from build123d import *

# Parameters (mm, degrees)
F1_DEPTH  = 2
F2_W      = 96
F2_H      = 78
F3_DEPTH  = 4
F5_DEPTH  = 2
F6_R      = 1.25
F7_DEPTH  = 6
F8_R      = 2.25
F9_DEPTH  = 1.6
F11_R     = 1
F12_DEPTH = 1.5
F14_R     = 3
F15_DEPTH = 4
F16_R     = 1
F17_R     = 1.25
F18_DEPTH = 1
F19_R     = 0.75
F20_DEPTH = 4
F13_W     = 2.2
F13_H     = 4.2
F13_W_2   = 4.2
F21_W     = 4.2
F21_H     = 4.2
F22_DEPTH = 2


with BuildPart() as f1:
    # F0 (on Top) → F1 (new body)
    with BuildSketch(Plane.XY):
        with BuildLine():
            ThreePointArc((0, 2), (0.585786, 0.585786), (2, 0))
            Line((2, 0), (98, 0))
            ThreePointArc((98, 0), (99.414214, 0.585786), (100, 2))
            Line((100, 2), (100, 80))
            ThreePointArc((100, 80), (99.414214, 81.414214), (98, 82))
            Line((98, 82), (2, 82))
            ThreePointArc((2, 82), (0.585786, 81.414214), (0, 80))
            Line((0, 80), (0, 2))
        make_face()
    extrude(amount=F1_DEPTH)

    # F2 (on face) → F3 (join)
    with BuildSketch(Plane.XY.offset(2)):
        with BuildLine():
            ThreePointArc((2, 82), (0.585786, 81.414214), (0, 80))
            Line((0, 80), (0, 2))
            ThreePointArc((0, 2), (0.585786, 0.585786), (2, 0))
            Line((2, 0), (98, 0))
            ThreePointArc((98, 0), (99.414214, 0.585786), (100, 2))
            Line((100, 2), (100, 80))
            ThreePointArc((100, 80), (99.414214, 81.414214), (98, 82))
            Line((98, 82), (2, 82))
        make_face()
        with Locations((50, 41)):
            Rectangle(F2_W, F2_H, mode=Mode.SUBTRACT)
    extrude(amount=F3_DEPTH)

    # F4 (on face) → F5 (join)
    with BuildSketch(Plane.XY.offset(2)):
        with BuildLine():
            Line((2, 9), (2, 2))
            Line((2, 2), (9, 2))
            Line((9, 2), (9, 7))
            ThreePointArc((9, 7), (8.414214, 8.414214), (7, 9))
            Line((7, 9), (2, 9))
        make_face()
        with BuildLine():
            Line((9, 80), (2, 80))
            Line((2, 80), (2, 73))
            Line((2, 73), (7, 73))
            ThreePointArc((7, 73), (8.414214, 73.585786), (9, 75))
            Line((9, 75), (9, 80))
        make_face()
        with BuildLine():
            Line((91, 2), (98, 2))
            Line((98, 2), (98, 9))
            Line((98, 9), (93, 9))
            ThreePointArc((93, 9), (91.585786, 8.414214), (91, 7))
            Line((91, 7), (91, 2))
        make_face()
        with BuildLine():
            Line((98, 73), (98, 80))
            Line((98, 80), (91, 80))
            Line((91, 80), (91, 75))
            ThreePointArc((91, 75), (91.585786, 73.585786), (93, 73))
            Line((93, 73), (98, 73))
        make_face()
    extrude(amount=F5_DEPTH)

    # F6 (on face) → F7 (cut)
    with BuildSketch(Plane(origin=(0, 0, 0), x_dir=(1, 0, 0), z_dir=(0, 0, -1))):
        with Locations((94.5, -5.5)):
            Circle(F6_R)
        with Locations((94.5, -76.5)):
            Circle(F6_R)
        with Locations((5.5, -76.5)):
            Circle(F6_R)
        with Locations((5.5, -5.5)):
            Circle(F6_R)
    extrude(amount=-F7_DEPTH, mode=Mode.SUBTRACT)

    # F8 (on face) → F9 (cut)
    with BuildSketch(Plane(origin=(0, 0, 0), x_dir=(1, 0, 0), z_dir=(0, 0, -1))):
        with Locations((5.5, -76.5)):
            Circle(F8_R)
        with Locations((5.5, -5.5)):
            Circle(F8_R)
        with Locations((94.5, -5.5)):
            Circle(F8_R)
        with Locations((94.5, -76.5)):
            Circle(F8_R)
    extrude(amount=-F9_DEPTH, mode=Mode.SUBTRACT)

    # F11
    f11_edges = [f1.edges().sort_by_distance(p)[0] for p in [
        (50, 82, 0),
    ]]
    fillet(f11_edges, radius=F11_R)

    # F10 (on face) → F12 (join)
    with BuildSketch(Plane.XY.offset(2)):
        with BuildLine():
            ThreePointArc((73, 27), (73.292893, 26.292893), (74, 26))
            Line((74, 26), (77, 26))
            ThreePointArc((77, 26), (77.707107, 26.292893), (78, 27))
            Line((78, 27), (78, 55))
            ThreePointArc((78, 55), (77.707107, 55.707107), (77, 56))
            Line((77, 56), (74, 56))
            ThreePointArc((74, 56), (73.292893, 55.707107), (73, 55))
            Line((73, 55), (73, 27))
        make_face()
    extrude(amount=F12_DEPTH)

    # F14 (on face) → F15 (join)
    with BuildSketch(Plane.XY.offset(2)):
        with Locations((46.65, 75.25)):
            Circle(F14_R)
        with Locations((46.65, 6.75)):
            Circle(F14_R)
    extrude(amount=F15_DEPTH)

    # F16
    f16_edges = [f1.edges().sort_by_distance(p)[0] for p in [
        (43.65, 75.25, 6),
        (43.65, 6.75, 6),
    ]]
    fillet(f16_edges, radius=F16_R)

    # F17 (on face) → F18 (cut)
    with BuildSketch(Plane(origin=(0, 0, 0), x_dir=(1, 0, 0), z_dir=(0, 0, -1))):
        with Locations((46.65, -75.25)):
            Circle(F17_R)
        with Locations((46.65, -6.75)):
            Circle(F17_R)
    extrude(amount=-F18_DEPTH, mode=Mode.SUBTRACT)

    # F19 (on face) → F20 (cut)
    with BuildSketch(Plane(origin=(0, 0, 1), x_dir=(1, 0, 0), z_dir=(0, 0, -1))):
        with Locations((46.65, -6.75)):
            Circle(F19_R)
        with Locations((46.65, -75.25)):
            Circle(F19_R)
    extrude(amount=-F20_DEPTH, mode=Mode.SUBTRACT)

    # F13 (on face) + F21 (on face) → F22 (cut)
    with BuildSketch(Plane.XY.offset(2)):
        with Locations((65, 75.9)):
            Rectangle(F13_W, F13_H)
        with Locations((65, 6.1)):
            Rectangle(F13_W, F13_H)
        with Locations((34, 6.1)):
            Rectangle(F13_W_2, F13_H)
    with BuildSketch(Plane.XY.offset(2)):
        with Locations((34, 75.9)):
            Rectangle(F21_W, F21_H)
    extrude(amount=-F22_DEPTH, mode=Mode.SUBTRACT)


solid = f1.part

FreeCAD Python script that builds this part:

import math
import FreeCAD as App
import Part
import Sketcher
Q = App.Units.Quantity


def edges_at(feature, points):
    """Names of the edges that pass closest to the given points."""
    edges = feature.Shape.Edges
    near = lambda p: min(range(len(edges)), key=lambda i: edges[i].distToShape(Part.Vertex(*p))[0])
    return sorted({f"Edge{near(p) + 1}" for p in points})


def add_polygon(sketch, points):
    """Adds a closed chain of lines whose ends are joined by coincident constraints."""
    first, n = sketch.GeometryCount, len(points)
    for a, b in zip(points, points[1:] + points[:1]):
        sketch.addGeometry(Part.LineSegment(App.Vector(*a, 0), App.Vector(*b, 0)), False)
    for i in range(n):
        sketch.addConstraint(Sketcher.Constraint("Coincident", first + i, 2, first + (i + 1) % n, 1))

doc = App.newDocument("Part")
params = doc.addObject("Spreadsheet::Sheet", "Params")
for row, (alias, value) in enumerate([
    ("sketch1_radius", "1.999999 mm"),
    ("sketch1_width", "96 mm"),
    ("sketch1_height", "78 mm"),
    ("pad1_length", "2 mm"),
    ("sketch2_radius", "1.999999 mm"),
    ("sketch2_width", "96 mm"),
    ("sketch2_height", "78 mm"),
    ("pad2_length", "4 mm"),
    ("sketch3_radius", "1.999999 mm"),
    ("sketch3_width", "7 mm"),
    ("pad3_length", "2 mm"),
    ("sketch4_diameter", "2.5 mm"),
    ("pocket1_length", "6 mm"),
    ("sketch5_diameter", "4.5 mm"),
    ("pocket2_length", "1.6 mm"),
    ("fillet_radius", "1 mm"),
    ("sketch6_radius", "0.999999 mm"),
    ("sketch6_width", "3 mm"),
    ("sketch6_height", "28 mm"),
    ("pad4_length", "1.5 mm"),
    ("sketch7_diameter", "6 mm"),
    ("pad5_length", "4 mm"),
    ("fillet2_radius", "1 mm"),
    ("sketch8_diameter", "2.5 mm"),
    ("pocket3_length", "1 mm"),
    ("sketch9_diameter", "1.5 mm"),
    ("pocket4_length", "4 mm"),
    ("sketch10_width", "2.2 mm"),
    ("sketch10_width2", "4.2 mm"),
    ("pocket5_length", "2 mm"),
], start=1):
    params.set(f"A{row}", alias)
    params.set(f"B{row}", "=" + value)
    params.setAlias(f"B{row}", alias)

body = doc.addObject("PartDesign::Body", "Body")

sketch1 = body.newObject("Sketcher::SketchObject", "Sketch")
sketch1.AttachmentSupport = (doc.getObject("XY_Plane"), [""])
sketch1.MapMode = "FlatFace"
sketch1.addGeometry([
    Part.ArcOfCircle(Part.Circle(App.Vector(2, 2, 0), App.Vector(0, 0, 1), 2), math.radians(180), math.radians(270)),
    Part.LineSegment(App.Vector(2, 0, 0), App.Vector(98, 0, 0)),
    Part.ArcOfCircle(Part.Circle(App.Vector(98, 2, 0), App.Vector(0, 0, 1), 2), math.radians(-90), math.radians(0)),
    Part.LineSegment(App.Vector(100, 2, 0), App.Vector(100, 80, 0)),
    Part.ArcOfCircle(Part.Circle(App.Vector(98, 80, 0), App.Vector(0, 0, 1), 2), math.radians(0), math.radians(90)),
    Part.LineSegment(App.Vector(98, 82, 0), App.Vector(2, 82, 0)),
    Part.ArcOfCircle(Part.Circle(App.Vector(2, 80, 0), App.Vector(0, 0, 1), 2), math.radians(90), math.radians(180)),
    Part.LineSegment(App.Vector(0, 80, 0), App.Vector(0, 2, 0)),
], False)
sketch1.addConstraint([
    Sketcher.Constraint("Tangent", 0, 2, 1, 1),
    Sketcher.Constraint("Tangent", 1, 2, 2, 1),
    Sketcher.Constraint("Tangent", 2, 2, 3, 1),
    Sketcher.Constraint("Tangent", 3, 2, 4, 1),
    Sketcher.Constraint("Tangent", 4, 2, 5, 1),
    Sketcher.Constraint("Tangent", 5, 2, 6, 1),
    Sketcher.Constraint("Tangent", 6, 2, 7, 1),
    Sketcher.Constraint("Tangent", 7, 2, 0, 1),
    Sketcher.Constraint("Horizontal", 1),
    Sketcher.Constraint("Vertical", 3),
    Sketcher.Constraint("Horizontal", 5),
    Sketcher.Constraint("Vertical", 7),
    Sketcher.Constraint("Equal", 0, 2),
    Sketcher.Constraint("Equal", 2, 4),
    Sketcher.Constraint("Equal", 4, 6),
    Sketcher.Constraint("PointOnObject", 0, 2, -1),
    Sketcher.Constraint("PointOnObject", 6, 2, -2),
    Sketcher.Constraint("Radius", 0, Q("1.999999 mm")),
    Sketcher.Constraint("DistanceX", 1, 1, 1, 2, Q("96 mm")),
    Sketcher.Constraint("DistanceY", 3, 1, 3, 2, Q("78 mm")),
])
sketch1.setExpression("Constraints[17]", "Params.sketch1_radius")
sketch1.setExpression("Constraints[18]", "Params.sketch1_width")
sketch1.setExpression("Constraints[19]", "Params.sketch1_height")
pad1 = body.newObject("PartDesign::Pad", "Pad")
pad1.Profile = sketch1
pad1.setExpression("Length", "Params.pad1_length")

sketch2 = body.newObject("Sketcher::SketchObject", "Sketch001")
sketch2.AttachmentSupport = (doc.getObject("XY_Plane"), [""])
sketch2.MapMode = "FlatFace"
sketch2.AttachmentOffset = App.Placement(App.Vector(0, 0, 2), App.Rotation())
sketch2.addGeometry(Part.ArcOfCircle(Part.Circle(App.Vector(2, 80, 0), App.Vector(0, 0, 1), 2), math.radians(90), math.radians(180)), False)
sketch2.addGeometry(Part.LineSegment(App.Vector(0, 80, 0), App.Vector(0, 2, 0)), False)
sketch2.addGeometry(Part.ArcOfCircle(Part.Circle(App.Vector(2, 2, 0), App.Vector(0, 0, 1), 2), math.radians(180), math.radians(270)), False)
sketch2.addGeometry(Part.LineSegment(App.Vector(2, 0, 0), App.Vector(98, 0, 0)), False)
sketch2.addGeometry(Part.ArcOfCircle(Part.Circle(App.Vector(98, 2, 0), App.Vector(0, 0, 1), 2), math.radians(-90), math.radians(0)), False)
sketch2.addGeometry(Part.LineSegment(App.Vector(100, 2, 0), App.Vector(100, 80, 0)), False)
sketch2.addGeometry(Part.ArcOfCircle(Part.Circle(App.Vector(98, 80, 0), App.Vector(0, 0, 1), 2), math.radians(0), math.radians(90)), False)
sketch2.addGeometry(Part.LineSegment(App.Vector(98, 82, 0), App.Vector(2, 82, 0)), False)
add_polygon(sketch2, [(98, 2), (2, 2), (2, 80), (98, 80)])
sketch2.addConstraint([
    Sketcher.Constraint("Tangent", 0, 2, 1, 1),
    Sketcher.Constraint("Tangent", 1, 2, 2, 1),
    Sketcher.Constraint("Tangent", 2, 2, 3, 1),
    Sketcher.Constraint("Tangent", 3, 2, 4, 1),
    Sketcher.Constraint("Tangent", 4, 2, 5, 1),
    Sketcher.Constraint("Tangent", 5, 2, 6, 1),
    Sketcher.Constraint("Tangent", 6, 2, 7, 1),
    Sketcher.Constraint("Tangent", 7, 2, 0, 1),
    Sketcher.Constraint("Vertical", 1),
    Sketcher.Constraint("Horizontal", 3),
    Sketcher.Constraint("Vertical", 5),
    Sketcher.Constraint("Horizontal", 7),
    Sketcher.Constraint("Horizontal", 8),
    Sketcher.Constraint("Vertical", 9),
    Sketcher.Constraint("Horizontal", 10),
    Sketcher.Constraint("Vertical", 11),
    Sketcher.Constraint("Coincident", 8, 2, 2, 3),
    Sketcher.Constraint("Coincident", 9, 2, 0, 3),
    Sketcher.Constraint("Coincident", 10, 2, 6, 3),
    Sketcher.Constraint("Equal", 2, 4),
    Sketcher.Constraint("PointOnObject", 0, 2, -2),
    Sketcher.Constraint("PointOnObject", 2, 2, -1),
    Sketcher.Constraint("Radius", 0, Q("1.999999 mm")),
    Sketcher.Constraint("DistanceX", 3, 1, 3, 2, Q("96 mm")),
    Sketcher.Constraint("DistanceY", 1, 2, 1, 1, Q("78 mm")),
])
sketch2.setExpression("Constraints[26]", "Params.sketch2_radius")
sketch2.setExpression("Constraints[27]", "Params.sketch2_width")
sketch2.setExpression("Constraints[28]", "Params.sketch2_height")
pad2 = body.newObject("PartDesign::Pad", "Pad001")
pad2.Profile = sketch2
pad2.setExpression("Length", "Params.pad2_length")

sketch3 = body.newObject("Sketcher::SketchObject", "Sketch002")
sketch3.AttachmentSupport = (doc.getObject("XY_Plane"), [""])
sketch3.MapMode = "FlatFace"
sketch3.AttachmentOffset = App.Placement(App.Vector(0, 0, 2), App.Rotation())
sketch3.addGeometry([
    Part.LineSegment(App.Vector(2, 9, 0), App.Vector(2, 2, 0)),
    Part.LineSegment(App.Vector(2, 2, 0), App.Vector(9, 2, 0)),
    Part.LineSegment(App.Vector(9, 2, 0), App.Vector(9, 7, 0)),
    Part.ArcOfCircle(Part.Circle(App.Vector(7, 7, 0), App.Vector(0, 0, 1), 2), math.radians(0), math.radians(90)),
    Part.LineSegment(App.Vector(7, 9, 0), App.Vector(2, 9, 0)),
    Part.LineSegment(App.Vector(9, 80, 0), App.Vector(2, 80, 0)),
    Part.LineSegment(App.Vector(2, 80, 0), App.Vector(2, 73, 0)),
    Part.LineSegment(App.Vector(2, 73, 0), App.Vector(7, 73, 0)),
    Part.ArcOfCircle(Part.Circle(App.Vector(7, 75, 0), App.Vector(0, 0, 1), 2), math.radians(-90), math.radians(0)),
    Part.LineSegment(App.Vector(9, 75, 0), App.Vector(9, 80, 0)),
    Part.LineSegment(App.Vector(91, 2, 0), App.Vector(98, 2, 0)),
    Part.LineSegment(App.Vector(98, 2, 0), App.Vector(98, 9, 0)),
    Part.LineSegment(App.Vector(98, 9, 0), App.Vector(93, 9, 0)),
    Part.ArcOfCircle(Part.Circle(App.Vector(93, 7, 0), App.Vector(0, 0, 1), 2), math.radians(90), math.radians(180)),
    Part.LineSegment(App.Vector(91, 7, 0), App.Vector(91, 2, 0)),
    Part.LineSegment(App.Vector(98, 73, 0), App.Vector(98, 80, 0)),
    Part.LineSegment(App.Vector(98, 80, 0), App.Vector(91, 80, 0)),
    Part.LineSegment(App.Vector(91, 80, 0), App.Vector(91, 75, 0)),
    Part.ArcOfCircle(Part.Circle(App.Vector(93, 75, 0), App.Vector(0, 0, 1), 2), math.radians(180), math.radians(270)),
    Part.LineSegment(App.Vector(93, 73, 0), App.Vector(98, 73, 0)),
], False)
sketch3.addConstraint([
    Sketcher.Constraint("Coincident", 0, 2, 1, 1),
    Sketcher.Constraint("Coincident", 1, 2, 2, 1),
    Sketcher.Constraint("Tangent", 2, 2, 3, 1),
    Sketcher.Constraint("Tangent", 3, 2, 4, 1),
    Sketcher.Constraint("Coincident", 4, 2, 0, 1),
    Sketcher.Constraint("Coincident", 5, 2, 6, 1),
    Sketcher.Constraint("Coincident", 6, 2, 7, 1),
    Sketcher.Constraint("Tangent", 7, 2, 8, 1),
    Sketcher.Constraint("Tangent", 8, 2, 9, 1),
    Sketcher.Constraint("Coincident", 9, 2, 5, 1),
    Sketcher.Constraint("Coincident", 10, 2, 11, 1),
    Sketcher.Constraint("Coincident", 11, 2, 12, 1),
    Sketcher.Constraint("Tangent", 12, 2, 13, 1),
    Sketcher.Constraint("Tangent", 13, 2, 14, 1),
    Sketcher.Constraint("Coincident", 14, 2, 10, 1),
    Sketcher.Constraint("Coincident", 15, 2, 16, 1),
    Sketcher.Constraint("Coincident", 16, 2, 17, 1),
    Sketcher.Constraint("Tangent", 17, 2, 18, 1),
    Sketcher.Constraint("Tangent", 18, 2, 19, 1),
    Sketcher.Constraint("Coincident", 19, 2, 15, 1),
    Sketcher.Constraint("Vertical", 0),
    Sketcher.Constraint("Horizontal", 1),
    Sketcher.Constraint("Vertical", 2),
    Sketcher.Constraint("Horizontal", 4),
    Sketcher.Constraint("Horizontal", 5),
    Sketcher.Constraint("Vertical", 6),
    Sketcher.Constraint("Horizontal", 7),
    Sketcher.Constraint("Vertical", 9),
    Sketcher.Constraint("Horizontal", 10),
    Sketcher.Constraint("Vertical", 11),
    Sketcher.Constraint("Horizontal", 12),
    Sketcher.Constraint("Vertical", 14),
    Sketcher.Constraint("Vertical", 15),
    Sketcher.Constraint("Horizontal", 16),
    Sketcher.Constraint("Vertical", 17),
    Sketcher.Constraint("Horizontal", 19),
    Sketcher.Constraint("Equal", 3, 8),
    Sketcher.Constraint("Equal", 8, 13),
    Sketcher.Constraint("Equal", 13, 18),
    Sketcher.Constraint("Horizontal", 3, 3, 13, 3),
    Sketcher.Constraint("Horizontal", 8, 3, 18, 3),
    Sketcher.Constraint("Horizontal", 1, 2, 10, 2),
    Sketcher.Constraint("Horizontal", 9, 2, 15, 2),
    Sketcher.Constraint("Vertical", 3, 3, 8, 3),
    Sketcher.Constraint("Vertical", 13, 3, 18, 3),
    Sketcher.Constraint("Vertical", 4, 2, 5, 2),
    Sketcher.Constraint("Vertical", 11, 2, 15, 2),
    Sketcher.Constraint("Equal", 5, 10),
    Sketcher.Constraint("Equal", 16, 0),
    Sketcher.Constraint("Equal", 0, 6),
    Sketcher.Constraint("Radius", 3, Q("1.999999 mm")),
    Sketcher.Constraint("DistanceX", 1, 1, 1, 2, Q("7 mm")),
    Sketcher.Constraint("DistanceX", -1, 1, 3, 3, Q("7.000001 mm")),
    Sketcher.Constraint("DistanceY", -1, 1, 3, 3, Q("7.000001 mm")),
    Sketcher.Constraint("DistanceY", -1, 1, 8, 3, Q("74.999999 mm")),
    Sketcher.Constraint("DistanceX", -1, 1, 13, 3, Q("92.999999 mm")),
])
sketch3.setExpression("Constraints[50]", "Params.sketch3_radius")
sketch3.setExpression("Constraints[51]", "Params.sketch3_width")
pad3 = body.newObject("PartDesign::Pad", "Pad002")
pad3.Profile = sketch3
pad3.setExpression("Length", "Params.pad3_length")

sketch4 = body.newObject("Sketcher::SketchObject", "Sketch003")
sketch4.AttachmentSupport = (doc.getObject("XY_Plane"), [""])
sketch4.MapMode = "FlatFace"
sketch4.addGeometry([
    Part.Circle(App.Vector(94.5, 5.5, 0), App.Vector(0, 0, 1), 1.2),
    Part.Circle(App.Vector(94.5, 76.5, 0), App.Vector(0, 0, 1), 1.2),
    Part.Circle(App.Vector(5.5, 76.5, 0), App.Vector(0, 0, 1), 1.2),
    Part.Circle(App.Vector(5.5, 5.5, 0), App.Vector(0, 0, 1), 1.2),
], False)
sketch4.addConstraint([
    Sketcher.Constraint("Equal", 0, 1),
    Sketcher.Constraint("Equal", 1, 2),
    Sketcher.Constraint("Equal", 2, 3),
    Sketcher.Constraint("Horizontal", 1, 3, 2, 3),
    Sketcher.Constraint("Horizontal", 0, 3, 3, 3),
    Sketcher.Constraint("Vertical", 0, 3, 1, 3),
    Sketcher.Constraint("Vertical", 2, 3, 3, 3),
    Sketcher.Constraint("Diameter", 0, Q("2.5 mm")),
    Sketcher.Constraint("DistanceY", 0, 3, 1, 3, Q("71 mm")),
    Sketcher.Constraint("DistanceX", 2, 3, 1, 3, Q("89 mm")),
    Sketcher.Constraint("DistanceX", -1, 1, 0, 3, Q("94.5 mm")),
    Sketcher.Constraint("DistanceY", -1, 1, 0, 3, Q("5.5 mm")),
])
sketch4.setExpression("Constraints[7]", "Params.sketch4_diameter")
pocket1 = body.newObject("PartDesign::Pocket", "Pocket")
pocket1.Profile = sketch4
pocket1.setExpression("Length", "Params.pocket1_length")
pocket1.Reversed = True

sketch5 = body.newObject("Sketcher::SketchObject", "Sketch004")
sketch5.AttachmentSupport = (doc.getObject("XY_Plane"), [""])
sketch5.MapMode = "FlatFace"
sketch5.addGeometry([
    Part.Circle(App.Vector(5.5, 76.5, 0), App.Vector(0, 0, 1), 2.2),
    Part.Circle(App.Vector(5.5, 5.5, 0), App.Vector(0, 0, 1), 2.2),
    Part.Circle(App.Vector(94.5, 5.5, 0), App.Vector(0, 0, 1), 2.2),
    Part.Circle(App.Vector(94.5, 76.5, 0), App.Vector(0, 0, 1), 2.2),
], False)
sketch5.addConstraint([
    Sketcher.Constraint("Equal", 0, 1),
    Sketcher.Constraint("Equal", 1, 2),
    Sketcher.Constraint("Equal", 2, 3),
    Sketcher.Constraint("Horizontal", 1, 3, 2, 3),
    Sketcher.Constraint("Horizontal", 0, 3, 3, 3),
    Sketcher.Constraint("Vertical", 0, 3, 1, 3),
    Sketcher.Constraint("Vertical", 2, 3, 3, 3),
    Sketcher.Constraint("Diameter", 0, Q("4.5 mm")),
    Sketcher.Constraint("DistanceY", 1, 3, 0, 3, Q("71 mm")),
    Sketcher.Constraint("DistanceX", 1, 3, 2, 3, Q("89 mm")),
    Sketcher.Constraint("DistanceX", -1, 1, 0, 3, Q("5.5 mm")),
    Sketcher.Constraint("DistanceY", -1, 1, 0, 3, Q("76.5 mm")),
])
sketch5.setExpression("Constraints[7]", "Params.sketch5_diameter")
pocket2 = body.newObject("PartDesign::Pocket", "Pocket001")
pocket2.Profile = sketch5
pocket2.setExpression("Length", "Params.pocket2_length")
pocket2.Reversed = True
doc.recompute()

fillet = body.newObject("PartDesign::Fillet", "Fillet")
fillet.Base = (pocket2, edges_at(pocket2, [(50, 82, 0)]))
fillet.setExpression("Radius", "Params.fillet_radius")

sketch6 = body.newObject("Sketcher::SketchObject", "Sketch005")
sketch6.AttachmentSupport = (doc.getObject("XY_Plane"), [""])
sketch6.MapMode = "FlatFace"
sketch6.AttachmentOffset = App.Placement(App.Vector(0, 0, 2), App.Rotation())
sketch6.addGeometry([
    Part.ArcOfCircle(Part.Circle(App.Vector(74, 27, 0), App.Vector(0, 0, 1), 1), math.radians(180), math.radians(270)),
    Part.LineSegment(App.Vector(74, 26, 0), App.Vector(77, 26, 0)),
    Part.ArcOfCircle(Part.Circle(App.Vector(77, 27, 0), App.Vector(0, 0, 1), 1), math.radians(-90), math.radians(0)),
    Part.LineSegment(App.Vector(78, 27, 0), App.Vector(78, 55, 0)),
    Part.ArcOfCircle(Part.Circle(App.Vector(77, 55, 0), App.Vector(0, 0, 1), 1), math.radians(0), math.radians(90)),
    Part.LineSegment(App.Vector(77, 56, 0), App.Vector(74, 56, 0)),
    Part.ArcOfCircle(Part.Circle(App.Vector(74, 55, 0), App.Vector(0, 0, 1), 1), math.radians(90), math.radians(180)),
    Part.LineSegment(App.Vector(73, 55, 0), App.Vector(73, 27, 0)),
], False)
sketch6.addConstraint([
    Sketcher.Constraint("Tangent", 0, 2, 1, 1),
    Sketcher.Constraint("Tangent", 1, 2, 2, 1),
    Sketcher.Constraint("Tangent", 2, 2, 3, 1),
    Sketcher.Constraint("Tangent", 3, 2, 4, 1),
    Sketcher.Constraint("Tangent", 4, 2, 5, 1),
    Sketcher.Constraint("Tangent", 5, 2, 6, 1),
    Sketcher.Constraint("Tangent", 6, 2, 7, 1),
    Sketcher.Constraint("Tangent", 7, 2, 0, 1),
    Sketcher.Constraint("Horizontal", 1),
    Sketcher.Constraint("Vertical", 3),
    Sketcher.Constraint("Horizontal", 5),
    Sketcher.Constraint("Vertical", 7),
    Sketcher.Constraint("Equal", 0, 2),
    Sketcher.Constraint("Equal", 2, 4),
    Sketcher.Constraint("Equal", 4, 6),
    Sketcher.Constraint("Radius", 0, Q("0.999999 mm")),
    Sketcher.Constraint("DistanceX", 1, 1, 1, 2, Q("3 mm")),
    Sketcher.Constraint("DistanceY", 3, 1, 3, 2, Q("28 mm")),
    Sketcher.Constraint("DistanceX", -1, 1, 0, 3, Q("73.999999 mm")),
    Sketcher.Constraint("DistanceY", -1, 1, 0, 3, Q("26.999999 mm")),
])
sketch6.setExpression("Constraints[15]", "Params.sketch6_radius")
sketch6.setExpression("Constraints[16]", "Params.sketch6_width")
sketch6.setExpression("Constraints[17]", "Params.sketch6_height")
pad4 = body.newObject("PartDesign::Pad", "Pad003")
pad4.Profile = sketch6
pad4.setExpression("Length", "Params.pad4_length")

sketch7 = body.newObject("Sketcher::SketchObject", "Sketch006")
sketch7.AttachmentSupport = (doc.getObject("XY_Plane"), [""])
sketch7.MapMode = "FlatFace"
sketch7.AttachmentOffset = App.Placement(App.Vector(0, 0, 2), App.Rotation())
sketch7.addGeometry([
    Part.Circle(App.Vector(46.6, 75.2, 0), App.Vector(0, 0, 1), 3),
    Part.Circle(App.Vector(46.6, 6.8, 0), App.Vector(0, 0, 1), 3),
], False)
sketch7.addConstraint([
    Sketcher.Constraint("Equal", 0, 1),
    Sketcher.Constraint("Vertical", 0, 3, 1, 3),
    Sketcher.Constraint("Diameter", 0, Q("6 mm")),
    Sketcher.Constraint("DistanceY", 1, 3, 0, 3, Q("68.5 mm")),
    Sketcher.Constraint("DistanceX", -1, 1, 0, 3, Q("46.65 mm")),
    Sketcher.Constraint("DistanceY", -1, 1, 0, 3, Q("75.25 mm")),
])
sketch7.setExpression("Constraints[2]", "Params.sketch7_diameter")
pad5 = body.newObject("PartDesign::Pad", "Pad004")
pad5.Profile = sketch7
pad5.setExpression("Length", "Params.pad5_length")
doc.recompute()

fillet2 = body.newObject("PartDesign::Fillet", "Fillet001")
fillet2.Base = (pad5, edges_at(pad5, [(43.65, 75.25, 6), (43.65, 6.75, 6)]))
fillet2.setExpression("Radius", "Params.fillet2_radius")

sketch8 = body.newObject("Sketcher::SketchObject", "Sketch007")
sketch8.AttachmentSupport = (doc.getObject("XY_Plane"), [""])
sketch8.MapMode = "FlatFace"
sketch8.addGeometry([
    Part.Circle(App.Vector(46.6, 75.2, 0), App.Vector(0, 0, 1), 1.2),
    Part.Circle(App.Vector(46.6, 6.8, 0), App.Vector(0, 0, 1), 1.2),
], False)
sketch8.addConstraint([
    Sketcher.Constraint("Equal", 0, 1),
    Sketcher.Constraint("Vertical", 0, 3, 1, 3),
    Sketcher.Constraint("Diameter", 0, Q("2.5 mm")),
    Sketcher.Constraint("DistanceY", 1, 3, 0, 3, Q("68.5 mm")),
    Sketcher.Constraint("DistanceX", -1, 1, 0, 3, Q("46.65 mm")),
    Sketcher.Constraint("DistanceY", -1, 1, 0, 3, Q("75.25 mm")),
])
sketch8.setExpression("Constraints[2]", "Params.sketch8_diameter")
pocket3 = body.newObject("PartDesign::Pocket", "Pocket002")
pocket3.Profile = sketch8
pocket3.setExpression("Length", "Params.pocket3_length")
pocket3.Reversed = True

sketch9 = body.newObject("Sketcher::SketchObject", "Sketch008")
sketch9.AttachmentSupport = (doc.getObject("XY_Plane"), [""])
sketch9.MapMode = "FlatFace"
sketch9.AttachmentOffset = App.Placement(App.Vector(0, 0, 1), App.Rotation())
sketch9.addGeometry([
    Part.Circle(App.Vector(46.6, 6.8, 0), App.Vector(0, 0, 1), 0.8),
    Part.Circle(App.Vector(46.6, 75.2, 0), App.Vector(0, 0, 1), 0.8),
], False)
sketch9.addConstraint([
    Sketcher.Constraint("Equal", 0, 1),
    Sketcher.Constraint("Vertical", 0, 3, 1, 3),
    Sketcher.Constraint("Diameter", 0, Q("1.5 mm")),
    Sketcher.Constraint("DistanceY", 0, 3, 1, 3, Q("68.5 mm")),
    Sketcher.Constraint("DistanceX", -1, 1, 0, 3, Q("46.65 mm")),
    Sketcher.Constraint("DistanceY", -1, 1, 0, 3, Q("6.75 mm")),
])
sketch9.setExpression("Constraints[2]", "Params.sketch9_diameter")
pocket4 = body.newObject("PartDesign::Pocket", "Pocket003")
pocket4.Profile = sketch9
pocket4.setExpression("Length", "Params.pocket4_length")
pocket4.Reversed = True

sketch10 = body.newObject("Sketcher::SketchObject", "Sketch009")
sketch10.AttachmentSupport = (doc.getObject("XY_Plane"), [""])
sketch10.MapMode = "FlatFace"
sketch10.AttachmentOffset = App.Placement(App.Vector(0, 0, 2), App.Rotation())
add_polygon(sketch10, [(63.9, 78), (63.9, 73.8), (66.1, 73.8), (66.1, 78)])
add_polygon(sketch10, [(63.9, 8.2), (63.9, 4), (66.1, 4), (66.1, 8.2)])
add_polygon(sketch10, [(31.9, 8.2), (31.9, 4), (36.1, 4), (36.1, 8.2)])
add_polygon(sketch10, [(31.9, 78), (31.9, 73.8), (36.1, 73.8), (36.1, 78)])
sketch10.addConstraint([
    Sketcher.Constraint("Vertical", 0),
    Sketcher.Constraint("Horizontal", 1),
    Sketcher.Constraint("Vertical", 2),
    Sketcher.Constraint("Horizontal", 3),
    Sketcher.Constraint("Vertical", 4),
    Sketcher.Constraint("Horizontal", 5),
    Sketcher.Constraint("Vertical", 6),
    Sketcher.Constraint("Horizontal", 7),
    Sketcher.Constraint("Vertical", 8),
    Sketcher.Constraint("Horizontal", 9),
    Sketcher.Constraint("Vertical", 10),
    Sketcher.Constraint("Horizontal", 11),
    Sketcher.Constraint("Vertical", 12),
    Sketcher.Constraint("Horizontal", 13),
    Sketcher.Constraint("Vertical", 14),
    Sketcher.Constraint("Horizontal", 15),
    Sketcher.Constraint("Horizontal", 5, 2, 8, 2),
    Sketcher.Constraint("Horizontal", 7, 2, 10, 2),
    Sketcher.Constraint("Horizontal", 1, 2, 12, 2),
    Sketcher.Constraint("Horizontal", 3, 2, 14, 2),
    Sketcher.Constraint("Vertical", 3, 2, 4, 2),
    Sketcher.Constraint("Vertical", 2, 2, 5, 2),
    Sketcher.Constraint("Vertical", 11, 2, 12, 2),
    Sketcher.Constraint("Vertical", 10, 2, 13, 2),
    Sketcher.Constraint("Equal", 15, 0),
    Sketcher.Constraint("Equal", 2, 4),
    Sketcher.Constraint("DistanceX", 1, 1, 1, 2, Q("2.2 mm")),
    Sketcher.Constraint("DistanceX", 9, 1, 9, 2, Q("4.2 mm")),
    Sketcher.Constraint("DistanceY", -1, 1, 2, 2, Q("78 mm")),
    Sketcher.Constraint("DistanceY", -1, 1, 4, 2, Q("4 mm")),
    Sketcher.Constraint("DistanceX", 8, 2, 4, 2, Q("32 mm")),
    Sketcher.Constraint("DistanceX", -1, 1, 0, 2, Q("63.9 mm")),
])
sketch10.setExpression("Constraints[42]", "Params.sketch10_width")
sketch10.setExpression("Constraints[43]", "Params.sketch10_width2")
pocket5 = body.newObject("PartDesign::Pocket", "Pocket004")
pocket5.Profile = sketch10
pocket5.setExpression("Length", "Params.pocket5_length")

doc.recompute()
